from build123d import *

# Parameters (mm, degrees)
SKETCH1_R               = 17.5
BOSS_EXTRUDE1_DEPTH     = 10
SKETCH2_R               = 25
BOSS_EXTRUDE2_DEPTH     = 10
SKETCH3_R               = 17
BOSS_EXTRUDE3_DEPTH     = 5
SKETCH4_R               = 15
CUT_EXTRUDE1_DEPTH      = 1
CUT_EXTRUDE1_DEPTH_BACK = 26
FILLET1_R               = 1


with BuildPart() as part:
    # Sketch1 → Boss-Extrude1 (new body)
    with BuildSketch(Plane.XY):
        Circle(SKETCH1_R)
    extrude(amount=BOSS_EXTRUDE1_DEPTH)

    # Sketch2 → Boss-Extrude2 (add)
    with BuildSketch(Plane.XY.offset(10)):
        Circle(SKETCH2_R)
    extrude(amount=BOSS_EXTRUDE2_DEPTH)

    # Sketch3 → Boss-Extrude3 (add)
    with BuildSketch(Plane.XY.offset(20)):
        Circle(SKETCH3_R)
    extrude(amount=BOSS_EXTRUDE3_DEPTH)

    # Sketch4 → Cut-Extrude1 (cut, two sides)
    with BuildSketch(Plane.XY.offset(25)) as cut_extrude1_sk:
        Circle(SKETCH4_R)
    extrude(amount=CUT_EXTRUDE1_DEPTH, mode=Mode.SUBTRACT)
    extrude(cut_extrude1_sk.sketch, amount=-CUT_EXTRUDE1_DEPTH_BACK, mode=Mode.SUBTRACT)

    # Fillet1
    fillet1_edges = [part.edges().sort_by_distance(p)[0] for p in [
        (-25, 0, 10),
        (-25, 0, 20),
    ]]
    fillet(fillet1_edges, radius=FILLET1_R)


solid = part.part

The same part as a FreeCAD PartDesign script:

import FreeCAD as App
import Part
import Sketcher

V = App.Vector


def edges_at(feature, points):
    """Names of the edges that pass closest to the given points."""
    edges = feature.Shape.Edges
    near = lambda p: min(range(len(edges)), key=lambda i: edges[i].distToShape(Part.Vertex(*p))[0])
    return sorted({f"Edge{near(p) + 1}" for p in points})

doc = App.newDocument("Part")
body = doc.addObject("PartDesign::Body", "Body")

sketch1 = body.newObject("Sketcher::SketchObject", "Sketch")
sketch1.AttachmentSupport = (doc.getObject("XY_Plane"), [""])
sketch1.MapMode = "FlatFace"
sketch1.addGeometry(Part.Circle(V(0, 0, 0), V(0, 0, 1), 18), False)
sketch1.addConstraint(Sketcher.Constraint("Coincident", 0, 3, -1, 1))
sketch1.addConstraint(Sketcher.Constraint("Diameter", 0, 35.0))
pad1 = body.newObject("PartDesign::Pad", "Pad")
pad1.Profile = sketch1
pad1.Length = 10

sketch2 = body.newObject("Sketcher::SketchObject", "Sketch001")
sketch2.AttachmentSupport = (doc.getObject("XY_Plane"), [""])
sketch2.MapMode = "FlatFace"
sketch2.AttachmentOffset = App.Placement(V(0, 0, 10), App.Rotation())
sketch2.addGeometry(Part.Circle(V(0, 0, 0), V(0, 0, 1), 25), False)
sketch2.addConstraint(Sketcher.Constraint("Coincident", 0, 3, -1, 1))
sketch2.addConstraint(Sketcher.Constraint("Diameter", 0, 50.0))
pad2 = body.newObject("PartDesign::Pad", "Pad001")
pad2.Profile = sketch2
pad2.Length = 10

sketch3 = body.newObject("Sketcher::SketchObject", "Sketch002")
sketch3.AttachmentSupport = (doc.getObject("XY_Plane"), [""])
sketch3.MapMode = "FlatFace"
sketch3.AttachmentOffset = App.Placement(V(0, 0, 20), App.Rotation())
sketch3.addGeometry(Part.Circle(V(0, 0, 0), V(0, 0, 1), 17), False)
sketch3.addConstraint(Sketcher.Constraint("Coincident", 0, 3, -1, 1))
sketch3.addConstraint(Sketcher.Constraint("Diameter", 0, 34.0))
pad3 = body.newObject("PartDesign::Pad", "Pad002")
pad3.Profile = sketch3
pad3.Length = 5

sketch4 = body.newObject("Sketcher::SketchObject", "Sketch003")
sketch4.AttachmentSupport = (doc.getObject("XY_Plane"), [""])
sketch4.MapMode = "FlatFace"
sketch4.AttachmentOffset = App.Placement(V(0, 0, 25), App.Rotation())
sketch4.addGeometry(Part.Circle(V(0, 0, 0), V(0, 0, 1), 15), False)
sketch4.addConstraint(Sketcher.Constraint("Coincident", 0, 3, -1, 1))
sketch4.addConstraint(Sketcher.Constraint("Diameter", 0, 30.0))
pocket1 = body.newObject("PartDesign::Pocket", "Pocket")
pocket1.Profile = sketch4
pocket1.Type = "ThroughAll"
pocket1.Midplane = True
doc.recompute()

fillet = body.newObject("PartDesign::Fillet", "Fillet")
fillet.Base = (pocket1, edges_at(pocket1, [(-25, 0, 10), (-25, 0, 20)]))
fillet.Radius = 1

doc.recompute()
